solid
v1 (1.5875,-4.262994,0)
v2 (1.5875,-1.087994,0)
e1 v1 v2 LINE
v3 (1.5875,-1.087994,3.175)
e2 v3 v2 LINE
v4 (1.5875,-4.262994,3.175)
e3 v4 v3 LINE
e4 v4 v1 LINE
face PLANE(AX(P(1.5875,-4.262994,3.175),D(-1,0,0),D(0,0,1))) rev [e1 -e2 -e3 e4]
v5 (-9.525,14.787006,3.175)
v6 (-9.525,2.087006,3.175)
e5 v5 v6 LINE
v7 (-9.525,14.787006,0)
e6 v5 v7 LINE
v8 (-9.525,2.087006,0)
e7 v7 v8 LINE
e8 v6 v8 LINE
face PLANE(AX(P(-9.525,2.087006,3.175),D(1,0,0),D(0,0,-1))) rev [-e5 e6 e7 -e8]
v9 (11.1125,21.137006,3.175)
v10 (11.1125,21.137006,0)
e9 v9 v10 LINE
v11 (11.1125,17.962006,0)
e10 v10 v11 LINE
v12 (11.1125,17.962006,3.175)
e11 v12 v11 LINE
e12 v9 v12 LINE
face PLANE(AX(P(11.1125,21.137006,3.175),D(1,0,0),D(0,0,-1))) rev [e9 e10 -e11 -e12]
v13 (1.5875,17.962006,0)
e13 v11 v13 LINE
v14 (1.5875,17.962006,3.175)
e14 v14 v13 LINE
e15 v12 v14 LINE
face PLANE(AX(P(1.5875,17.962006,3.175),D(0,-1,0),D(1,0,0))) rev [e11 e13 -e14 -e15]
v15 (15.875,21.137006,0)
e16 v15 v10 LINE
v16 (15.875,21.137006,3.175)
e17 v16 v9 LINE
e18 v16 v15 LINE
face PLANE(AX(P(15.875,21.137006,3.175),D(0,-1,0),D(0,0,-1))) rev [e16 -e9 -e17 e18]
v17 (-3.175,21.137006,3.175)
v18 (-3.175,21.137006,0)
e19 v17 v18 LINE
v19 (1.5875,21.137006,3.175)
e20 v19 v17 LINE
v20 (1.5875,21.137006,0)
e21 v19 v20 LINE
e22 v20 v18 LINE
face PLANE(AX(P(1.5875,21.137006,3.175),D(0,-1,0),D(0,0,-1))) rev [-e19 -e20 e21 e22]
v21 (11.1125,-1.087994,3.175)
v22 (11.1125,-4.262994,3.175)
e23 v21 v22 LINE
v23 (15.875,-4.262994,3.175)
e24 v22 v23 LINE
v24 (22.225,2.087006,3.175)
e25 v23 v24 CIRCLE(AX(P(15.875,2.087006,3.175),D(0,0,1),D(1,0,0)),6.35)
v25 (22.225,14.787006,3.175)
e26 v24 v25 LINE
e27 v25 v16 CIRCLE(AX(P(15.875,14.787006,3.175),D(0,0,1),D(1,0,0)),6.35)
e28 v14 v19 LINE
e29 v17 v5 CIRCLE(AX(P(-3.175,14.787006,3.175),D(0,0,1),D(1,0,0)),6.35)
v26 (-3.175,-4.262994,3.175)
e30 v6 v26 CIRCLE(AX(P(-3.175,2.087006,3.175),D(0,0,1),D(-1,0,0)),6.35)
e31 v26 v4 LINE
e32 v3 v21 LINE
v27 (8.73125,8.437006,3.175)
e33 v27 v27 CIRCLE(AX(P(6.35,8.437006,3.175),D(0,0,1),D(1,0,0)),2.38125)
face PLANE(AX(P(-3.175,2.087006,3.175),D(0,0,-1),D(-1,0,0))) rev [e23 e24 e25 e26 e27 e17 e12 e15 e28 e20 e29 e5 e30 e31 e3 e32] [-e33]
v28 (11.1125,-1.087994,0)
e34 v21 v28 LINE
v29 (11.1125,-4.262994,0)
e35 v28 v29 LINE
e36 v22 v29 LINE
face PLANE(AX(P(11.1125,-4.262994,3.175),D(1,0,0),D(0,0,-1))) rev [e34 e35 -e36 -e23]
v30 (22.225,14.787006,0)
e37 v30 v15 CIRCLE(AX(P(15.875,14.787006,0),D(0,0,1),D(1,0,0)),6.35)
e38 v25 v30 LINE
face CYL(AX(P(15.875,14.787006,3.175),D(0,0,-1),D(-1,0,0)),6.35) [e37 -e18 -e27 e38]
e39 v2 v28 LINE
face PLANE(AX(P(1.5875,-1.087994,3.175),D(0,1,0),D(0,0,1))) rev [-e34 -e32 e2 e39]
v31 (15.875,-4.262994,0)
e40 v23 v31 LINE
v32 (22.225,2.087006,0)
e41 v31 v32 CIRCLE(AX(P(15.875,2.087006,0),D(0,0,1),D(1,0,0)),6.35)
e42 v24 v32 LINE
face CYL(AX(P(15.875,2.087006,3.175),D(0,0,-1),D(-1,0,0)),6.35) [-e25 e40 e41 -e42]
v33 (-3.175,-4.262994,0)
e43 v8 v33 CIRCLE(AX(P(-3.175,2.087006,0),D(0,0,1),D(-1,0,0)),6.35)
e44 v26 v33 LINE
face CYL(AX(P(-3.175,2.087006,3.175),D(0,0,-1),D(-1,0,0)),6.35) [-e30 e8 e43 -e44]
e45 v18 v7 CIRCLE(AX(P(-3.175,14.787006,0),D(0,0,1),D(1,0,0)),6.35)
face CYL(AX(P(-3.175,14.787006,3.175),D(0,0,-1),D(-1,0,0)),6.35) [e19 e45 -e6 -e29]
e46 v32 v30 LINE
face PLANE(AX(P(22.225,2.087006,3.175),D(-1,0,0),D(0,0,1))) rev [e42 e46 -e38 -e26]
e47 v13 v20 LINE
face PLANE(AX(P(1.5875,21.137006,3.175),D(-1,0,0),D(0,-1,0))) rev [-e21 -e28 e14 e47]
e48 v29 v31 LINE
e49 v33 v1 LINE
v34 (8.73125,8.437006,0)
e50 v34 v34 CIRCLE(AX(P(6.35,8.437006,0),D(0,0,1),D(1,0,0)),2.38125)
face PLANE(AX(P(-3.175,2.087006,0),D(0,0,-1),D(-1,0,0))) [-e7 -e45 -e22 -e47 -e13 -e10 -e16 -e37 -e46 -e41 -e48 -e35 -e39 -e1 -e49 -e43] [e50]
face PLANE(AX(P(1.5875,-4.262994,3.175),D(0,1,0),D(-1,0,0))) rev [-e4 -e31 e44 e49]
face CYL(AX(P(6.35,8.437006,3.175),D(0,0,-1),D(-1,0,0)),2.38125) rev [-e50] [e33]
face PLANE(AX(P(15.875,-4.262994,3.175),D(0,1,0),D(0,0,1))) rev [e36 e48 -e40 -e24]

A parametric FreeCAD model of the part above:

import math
import FreeCAD as App
import Part
import Sketcher

V = App.Vector
Q = App.Units.Quantity

doc = App.newDocument("Part")
body = doc.addObject("PartDesign::Body", "Body")

# Sketch on XY plane
sketch1 = body.newObject("Sketcher::SketchObject", "Sketch")
sketch1.AttachmentSupport = (doc.getObject("XY_Plane"), [""])
sketch1.MapMode = "FlatFace"
sketch1.addGeometry([
    Part.LineSegment(V(1.6, 21.1, 0), V(-3.2, 21.1, 0)),  # 0
    Part.ArcOfCircle(Part.Circle(V(-3.2, 14.8, 0), V(0, 0, 1), 6.3), math.radians(90), math.radians(180)),  # 1
    Part.LineSegment(V(-9.5, 14.8, 0), V(-9.5, 2.1, 0)),  # 2
    Part.ArcOfCircle(Part.Circle(V(-3.2, 2.1, 0), V(0, 0, 1), 6.3), math.radians(180), math.radians(270)),  # 3
    Part.LineSegment(V(-3.2, -4.3, 0), V(1.6, -4.3, 0)),  # 4
    Part.LineSegment(V(1.6, -4.3, 0), V(1.6, -1.1, 0)),  # 5
    Part.LineSegment(V(1.6, -1.1, 0), V(11.1, -1.1, 0)),  # 6
    Part.LineSegment(V(11.1, -1.1, 0), V(11.1, -4.3, 0)),  # 7
    Part.LineSegment(V(11.1, -4.3, 0), V(15.9, -4.3, 0)),  # 8
    Part.ArcOfCircle(Part.Circle(V(15.9, 2.1, 0), V(0, 0, 1), 6.3), math.radians(-90), math.radians(0)),  # 9
    Part.LineSegment(V(22.2, 2.1, 0), V(22.2, 14.8, 0)),  # 10
    Part.ArcOfCircle(Part.Circle(V(15.9, 14.8, 0), V(0, 0, 1), 6.3), math.radians(0), math.radians(90)),  # 11
    Part.LineSegment(V(15.9, 21.1, 0), V(11.1, 21.1, 0)),  # 12
    Part.LineSegment(V(11.1, 21.1, 0), V(11.1, 18, 0)),  # 13
    Part.LineSegment(V(11.1, 18, 0), V(1.6, 18, 0)),  # 14
    Part.LineSegment(V(1.6, 18, 0), V(1.6, 21.1, 0)),  # 15
    Part.Circle(V(6.3, 8.4, 0), V(0, 0, 1), 2.4),  # 16
], False)
sketch1.addConstraint([
    Sketcher.Constraint("Tangent", 0, 2, 1, 1),
    Sketcher.Constraint("Tangent", 1, 2, 2, 1),
    Sketcher.Constraint("Tangent", 2, 2, 3, 1),
    Sketcher.Constraint("Tangent", 3, 2, 4, 1),
    Sketcher.Constraint("Coincident", 4, 2, 5, 1),
    Sketcher.Constraint("Coincident", 5, 2, 6, 1),
    Sketcher.Constraint("Coincident", 6, 2, 7, 1),
    Sketcher.Constraint("Coincident", 7, 2, 8, 1),
    Sketcher.Constraint("Tangent", 8, 2, 9, 1),
    Sketcher.Constraint("Tangent", 9, 2, 10, 1),
    Sketcher.Constraint("Tangent", 10, 2, 11, 1),
    Sketcher.Constraint("Tangent", 11, 2, 12, 1),
    Sketcher.Constraint("Coincident", 12, 2, 13, 1),
    Sketcher.Constraint("Coincident", 13, 2, 14, 1),
    Sketcher.Constraint("Coincident", 14, 2, 15, 1),
    Sketcher.Constraint("Coincident", 15, 2, 0, 1),
    Sketcher.Constraint("Horizontal", 0),
    Sketcher.Constraint("Vertical", 2),
    Sketcher.Constraint("Horizontal", 4),
    Sketcher.Constraint("Vertical", 5),
    Sketcher.Constraint("Horizontal", 6),
    Sketcher.Constraint("Vertical", 7),
    Sketcher.Constraint("Horizontal", 8),
    Sketcher.Constraint("Vertical", 10),
    Sketcher.Constraint("Horizontal", 12),
    Sketcher.Constraint("Vertical", 13),
    Sketcher.Constraint("Horizontal", 14),
    Sketcher.Constraint("Vertical", 15),
    Sketcher.Constraint("Equal", 1, 3),
    Sketcher.Constraint("Equal", 3, 9),
    Sketcher.Constraint("Equal", 9, 11),
    Sketcher.Constraint("Horizontal", 3, 3, 9, 3),
    Sketcher.Constraint("Horizontal", 1, 3, 11, 3),
    Sketcher.Constraint("Vertical", 7, 2, 12, 2),
    Sketcher.Constraint("Vertical", 5, 2, 14, 2),
    Sketcher.Constraint("Equal", 4, 8),
    Sketcher.Constraint("Equal", 7, 13),
    Sketcher.Constraint("Radius", 1, Q("0.25 in")),
    Sketcher.Constraint("Diameter", 16, Q("0.1875 in")),
    Sketcher.Constraint("DistanceY", 2, 2, 2, 1, Q("0.5 in")),
    Sketcher.Constraint("DistanceX", 1, 2, 11, 3, Q("1 in")),
    Sketcher.Constraint("DistanceY", 16, 3, 0, 2, Q("0.5 in")),
    Sketcher.Constraint("DistanceX", 0, 2, 0, 1, Q("0.1875 in")),
    Sketcher.Constraint("DistanceY", 5, 1, 5, 2, Q("0.125 in")),
    Sketcher.Constraint("DistanceX", -1, 1, 16, 3, Q("0.25 in")),
    Sketcher.Constraint("DistanceX", 1, 3, -1, 1, Q("0.125 in")),
    Sketcher.Constraint("DistanceY", -1, 1, 1, 3, Q("14.787006 mm")),
])
pad1 = body.newObject("PartDesign::Pad", "Pad")
pad1.Profile = sketch1
pad1.Length = Q("0.125 in")

doc.recompute()
